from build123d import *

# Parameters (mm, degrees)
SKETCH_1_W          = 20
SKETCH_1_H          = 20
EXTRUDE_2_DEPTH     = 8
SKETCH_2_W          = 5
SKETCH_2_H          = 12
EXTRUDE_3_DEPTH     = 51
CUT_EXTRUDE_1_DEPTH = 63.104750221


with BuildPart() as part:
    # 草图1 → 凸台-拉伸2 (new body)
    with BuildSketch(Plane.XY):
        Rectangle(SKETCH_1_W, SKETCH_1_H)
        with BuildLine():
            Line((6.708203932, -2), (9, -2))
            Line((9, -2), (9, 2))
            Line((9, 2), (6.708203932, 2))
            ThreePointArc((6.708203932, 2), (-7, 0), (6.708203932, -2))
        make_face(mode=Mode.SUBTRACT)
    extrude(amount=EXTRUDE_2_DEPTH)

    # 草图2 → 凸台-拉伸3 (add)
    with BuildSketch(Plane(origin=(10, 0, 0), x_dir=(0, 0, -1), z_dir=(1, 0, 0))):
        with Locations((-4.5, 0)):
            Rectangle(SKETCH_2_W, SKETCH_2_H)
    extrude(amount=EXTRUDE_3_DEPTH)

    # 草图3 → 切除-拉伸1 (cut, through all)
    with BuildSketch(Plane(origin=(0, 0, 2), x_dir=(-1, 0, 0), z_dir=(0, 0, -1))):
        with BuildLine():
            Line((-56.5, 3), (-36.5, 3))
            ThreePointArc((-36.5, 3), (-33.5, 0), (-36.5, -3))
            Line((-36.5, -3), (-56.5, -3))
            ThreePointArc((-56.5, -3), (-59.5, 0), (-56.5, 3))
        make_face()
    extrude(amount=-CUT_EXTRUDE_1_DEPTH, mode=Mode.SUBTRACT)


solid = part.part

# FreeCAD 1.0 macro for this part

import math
import FreeCAD as App
import Part
import Sketcher
from FreeCAD import Vector

doc = App.newDocument("Part")
body = doc.addObject("PartDesign::Body", "Body")

sketch1 = body.newObject("Sketcher::SketchObject", "Sketch")
sketch1.AttachmentSupport = (doc.getObject("XY_Plane"), [""])
sketch1.MapMode = "FlatFace"
sketch1.addGeometry(Part.LineSegment(Vector(-10, 10, 0), Vector(-10, -10, 0)), False)
sketch1.addGeometry(Part.LineSegment(Vector(-10, -10, 0), Vector(10, -10, 0)), False)
sketch1.addGeometry(Part.LineSegment(Vector(10, -10, 0), Vector(10, 10, 0)), False)
sketch1.addGeometry(Part.LineSegment(Vector(10, 10, 0), Vector(-10, 10, 0)), False)
sketch1.addGeometry(Part.LineSegment(Vector(9, -2, 0), Vector(6.7, -2, 0)), False)
sketch1.addGeometry(Part.ArcOfCircle(Part.Circle(Vector(0, 0, 0), Vector(0, 0, 1), 7), math.radians(17), math.radians(343)), False)
sketch1.addGeometry(Part.LineSegment(Vector(6.7, 2, 0), Vector(9, 2, 0)), False)
sketch1.addGeometry(Part.LineSegment(Vector(9, 2, 0), Vector(9, -2, 0)), False)
sketch1.addConstraint(Sketcher.Constraint("Coincident", 0, 2, 1, 1))
sketch1.addConstraint(Sketcher.Constraint("Coincident", 1, 2, 2, 1))
sketch1.addConstraint(Sketcher.Constraint("Coincident", 2, 2, 3, 1))
sketch1.addConstraint(Sketcher.Constraint("Coincident", 3, 2, 0, 1))
sketch1.addConstraint(Sketcher.Constraint("Coincident", 4, 2, 5, 2))
sketch1.addConstraint(Sketcher.Constraint("Coincident", 5, 1, 6, 1))
sketch1.addConstraint(Sketcher.Constraint("Coincident", 6, 2, 7, 1))
sketch1.addConstraint(Sketcher.Constraint("Coincident", 7, 2, 4, 1))
sketch1.addConstraint(Sketcher.Constraint("Vertical", 0))
sketch1.addConstraint(Sketcher.Constraint("Horizontal", 1))
sketch1.addConstraint(Sketcher.Constraint("Vertical", 2))
sketch1.addConstraint(Sketcher.Constraint("Horizontal", 3))
sketch1.addConstraint(Sketcher.Constraint("Horizontal", 4))
sketch1.addConstraint(Sketcher.Constraint("Horizontal", 6))
sketch1.addConstraint(Sketcher.Constraint("Vertical", 7))
sketch1.addConstraint(Sketcher.Constraint("Coincident", 5, 3, -1, 1))
sketch1.addConstraint(Sketcher.Constraint("Symmetric", 0, 2, 2, 2, -1, 1))
sketch1.addConstraint(Sketcher.Constraint("Vertical", 4, 2, 5, 1))
sketch1.addConstraint(Sketcher.Constraint("Equal", 3, 0))
sketch1.addConstraint(Sketcher.Constraint("Radius", 5, 7.0))
sketch1.addConstraint(Sketcher.Constraint("DistanceX", 1, 1, 1, 2, 20.0))
sketch1.addConstraint(Sketcher.Constraint("DistanceY", 7, 2, 7, 1, 4.0))
sketch1.addConstraint(Sketcher.Constraint("DistanceX", -1, 1, 6, 2, 9.0))
pad1 = body.newObject("PartDesign::Pad", "Pad")
pad1.Profile = sketch1
pad1.Length = 8

sketch2 = body.newObject("Sketcher::SketchObject", "Sketch001")
sketch2.AttachmentSupport = (doc.getObject("YZ_Plane"), [""])
sketch2.MapMode = "FlatFace"
sketch2.AttachmentOffset = App.Placement(Vector(0, 0, 10), App.Rotation())
sketch2.addGeometry(Part.LineSegment(Vector(6, 7, 0), Vector(-6, 7, 0)), False)
sketch2.addGeometry(Part.LineSegment(Vector(-6, 7, 0), Vector(-6, 2, 0)), False)
sketch2.addGeometry(Part.LineSegment(Vector(-6, 2, 0), Vector(6, 2, 0)), False)
sketch2.addGeometry(Part.LineSegment(Vector(6, 2, 0), Vector(6, 7, 0)), False)
sketch2.addConstraint(Sketcher.Constraint("Coincident", 0, 2, 1, 1))
sketch2.addConstraint(Sketcher.Constraint("Coincident", 1, 2, 2, 1))
sketch2.addConstraint(Sketcher.Constraint("Coincident", 2, 2, 3, 1))
sketch2.addConstraint(Sketcher.Constraint("Coincident", 3, 2, 0, 1))
sketch2.addConstraint(Sketcher.Constraint("Horizontal", 0))
sketch2.addConstraint(Sketcher.Constraint("Vertical", 1))
sketch2.addConstraint(Sketcher.Constraint("Horizontal", 2))
sketch2.addConstraint(Sketcher.Constraint("Vertical", 3))
sketch2.addConstraint(Sketcher.Constraint("DistanceX", 0, 2, 0, 1, 12.0))
sketch2.addConstraint(Sketcher.Constraint("DistanceY", 1, 2, 1, 1, 5.0))
sketch2.addConstraint(Sketcher.Constraint("DistanceX", 0, 2, -1, 1, 6.0))
sketch2.addConstraint(Sketcher.Constraint("DistanceY", -1, 1, 0, 2, 7.0))
pad2 = body.newObject("PartDesign::Pad", "Pad001")
pad2.Profile = sketch2
pad2.Length = 51

sketch3 = body.newObject("Sketcher::SketchObject", "Sketch002")
sketch3.AttachmentSupport = (doc.getObject("XY_Plane"), [""])
sketch3.MapMode = "FlatFace"
sketch3.AttachmentOffset = App.Placement(Vector(0, 0, 2), App.Rotation())
sketch3.addGeometry(Part.LineSegment(Vector(36.5, 3, 0), Vector(56.5, 3, 0)), False)
sketch3.addGeometry(Part.ArcOfCircle(Part.Circle(Vector(56.5, 0, 0), Vector(0, 0, 1), 3), math.radians(-90), math.radians(90)), False)
sketch3.addGeometry(Part.LineSegment(Vector(56.5, -3, 0), Vector(36.5, -3, 0)), False)
sketch3.addGeometry(Part.ArcOfCircle(Part.Circle(Vector(36.5, 0, 0), Vector(0, 0, 1), 3), math.radians(90), math.radians(270)), False)
sketch3.addConstraint(Sketcher.Constraint("Tangent", 0, 2, 1, 2))
sketch3.addConstraint(Sketcher.Constraint("Tangent", 1, 1, 2, 1))
sketch3.addConstraint(Sketcher.Constraint("Tangent", 2, 2, 3, 2))
sketch3.addConstraint(Sketcher.Constraint("Tangent", 3, 1, 0, 1))
sketch3.addConstraint(Sketcher.Constraint("Horizontal", 0))
sketch3.addConstraint(Sketcher.Constraint("Horizontal", 2))
sketch3.addConstraint(Sketcher.Constraint("PointOnObject", 1, 3, -1))
sketch3.addConstraint(Sketcher.Constraint("Radius", 1, 3.0))
sketch3.addConstraint(Sketcher.Constraint("DistanceX", 0, 1, 0, 2, 20.0))
sketch3.addConstraint(Sketcher.Constraint("DistanceX", -1, 1, 1, 3, 56.5))
pocket1 = body.newObject("PartDesign::Pocket", "Pocket")
pocket1.Profile = sketch3
pocket1.Type = "ThroughAll"
pocket1.Reversed = True

doc.recompute()
